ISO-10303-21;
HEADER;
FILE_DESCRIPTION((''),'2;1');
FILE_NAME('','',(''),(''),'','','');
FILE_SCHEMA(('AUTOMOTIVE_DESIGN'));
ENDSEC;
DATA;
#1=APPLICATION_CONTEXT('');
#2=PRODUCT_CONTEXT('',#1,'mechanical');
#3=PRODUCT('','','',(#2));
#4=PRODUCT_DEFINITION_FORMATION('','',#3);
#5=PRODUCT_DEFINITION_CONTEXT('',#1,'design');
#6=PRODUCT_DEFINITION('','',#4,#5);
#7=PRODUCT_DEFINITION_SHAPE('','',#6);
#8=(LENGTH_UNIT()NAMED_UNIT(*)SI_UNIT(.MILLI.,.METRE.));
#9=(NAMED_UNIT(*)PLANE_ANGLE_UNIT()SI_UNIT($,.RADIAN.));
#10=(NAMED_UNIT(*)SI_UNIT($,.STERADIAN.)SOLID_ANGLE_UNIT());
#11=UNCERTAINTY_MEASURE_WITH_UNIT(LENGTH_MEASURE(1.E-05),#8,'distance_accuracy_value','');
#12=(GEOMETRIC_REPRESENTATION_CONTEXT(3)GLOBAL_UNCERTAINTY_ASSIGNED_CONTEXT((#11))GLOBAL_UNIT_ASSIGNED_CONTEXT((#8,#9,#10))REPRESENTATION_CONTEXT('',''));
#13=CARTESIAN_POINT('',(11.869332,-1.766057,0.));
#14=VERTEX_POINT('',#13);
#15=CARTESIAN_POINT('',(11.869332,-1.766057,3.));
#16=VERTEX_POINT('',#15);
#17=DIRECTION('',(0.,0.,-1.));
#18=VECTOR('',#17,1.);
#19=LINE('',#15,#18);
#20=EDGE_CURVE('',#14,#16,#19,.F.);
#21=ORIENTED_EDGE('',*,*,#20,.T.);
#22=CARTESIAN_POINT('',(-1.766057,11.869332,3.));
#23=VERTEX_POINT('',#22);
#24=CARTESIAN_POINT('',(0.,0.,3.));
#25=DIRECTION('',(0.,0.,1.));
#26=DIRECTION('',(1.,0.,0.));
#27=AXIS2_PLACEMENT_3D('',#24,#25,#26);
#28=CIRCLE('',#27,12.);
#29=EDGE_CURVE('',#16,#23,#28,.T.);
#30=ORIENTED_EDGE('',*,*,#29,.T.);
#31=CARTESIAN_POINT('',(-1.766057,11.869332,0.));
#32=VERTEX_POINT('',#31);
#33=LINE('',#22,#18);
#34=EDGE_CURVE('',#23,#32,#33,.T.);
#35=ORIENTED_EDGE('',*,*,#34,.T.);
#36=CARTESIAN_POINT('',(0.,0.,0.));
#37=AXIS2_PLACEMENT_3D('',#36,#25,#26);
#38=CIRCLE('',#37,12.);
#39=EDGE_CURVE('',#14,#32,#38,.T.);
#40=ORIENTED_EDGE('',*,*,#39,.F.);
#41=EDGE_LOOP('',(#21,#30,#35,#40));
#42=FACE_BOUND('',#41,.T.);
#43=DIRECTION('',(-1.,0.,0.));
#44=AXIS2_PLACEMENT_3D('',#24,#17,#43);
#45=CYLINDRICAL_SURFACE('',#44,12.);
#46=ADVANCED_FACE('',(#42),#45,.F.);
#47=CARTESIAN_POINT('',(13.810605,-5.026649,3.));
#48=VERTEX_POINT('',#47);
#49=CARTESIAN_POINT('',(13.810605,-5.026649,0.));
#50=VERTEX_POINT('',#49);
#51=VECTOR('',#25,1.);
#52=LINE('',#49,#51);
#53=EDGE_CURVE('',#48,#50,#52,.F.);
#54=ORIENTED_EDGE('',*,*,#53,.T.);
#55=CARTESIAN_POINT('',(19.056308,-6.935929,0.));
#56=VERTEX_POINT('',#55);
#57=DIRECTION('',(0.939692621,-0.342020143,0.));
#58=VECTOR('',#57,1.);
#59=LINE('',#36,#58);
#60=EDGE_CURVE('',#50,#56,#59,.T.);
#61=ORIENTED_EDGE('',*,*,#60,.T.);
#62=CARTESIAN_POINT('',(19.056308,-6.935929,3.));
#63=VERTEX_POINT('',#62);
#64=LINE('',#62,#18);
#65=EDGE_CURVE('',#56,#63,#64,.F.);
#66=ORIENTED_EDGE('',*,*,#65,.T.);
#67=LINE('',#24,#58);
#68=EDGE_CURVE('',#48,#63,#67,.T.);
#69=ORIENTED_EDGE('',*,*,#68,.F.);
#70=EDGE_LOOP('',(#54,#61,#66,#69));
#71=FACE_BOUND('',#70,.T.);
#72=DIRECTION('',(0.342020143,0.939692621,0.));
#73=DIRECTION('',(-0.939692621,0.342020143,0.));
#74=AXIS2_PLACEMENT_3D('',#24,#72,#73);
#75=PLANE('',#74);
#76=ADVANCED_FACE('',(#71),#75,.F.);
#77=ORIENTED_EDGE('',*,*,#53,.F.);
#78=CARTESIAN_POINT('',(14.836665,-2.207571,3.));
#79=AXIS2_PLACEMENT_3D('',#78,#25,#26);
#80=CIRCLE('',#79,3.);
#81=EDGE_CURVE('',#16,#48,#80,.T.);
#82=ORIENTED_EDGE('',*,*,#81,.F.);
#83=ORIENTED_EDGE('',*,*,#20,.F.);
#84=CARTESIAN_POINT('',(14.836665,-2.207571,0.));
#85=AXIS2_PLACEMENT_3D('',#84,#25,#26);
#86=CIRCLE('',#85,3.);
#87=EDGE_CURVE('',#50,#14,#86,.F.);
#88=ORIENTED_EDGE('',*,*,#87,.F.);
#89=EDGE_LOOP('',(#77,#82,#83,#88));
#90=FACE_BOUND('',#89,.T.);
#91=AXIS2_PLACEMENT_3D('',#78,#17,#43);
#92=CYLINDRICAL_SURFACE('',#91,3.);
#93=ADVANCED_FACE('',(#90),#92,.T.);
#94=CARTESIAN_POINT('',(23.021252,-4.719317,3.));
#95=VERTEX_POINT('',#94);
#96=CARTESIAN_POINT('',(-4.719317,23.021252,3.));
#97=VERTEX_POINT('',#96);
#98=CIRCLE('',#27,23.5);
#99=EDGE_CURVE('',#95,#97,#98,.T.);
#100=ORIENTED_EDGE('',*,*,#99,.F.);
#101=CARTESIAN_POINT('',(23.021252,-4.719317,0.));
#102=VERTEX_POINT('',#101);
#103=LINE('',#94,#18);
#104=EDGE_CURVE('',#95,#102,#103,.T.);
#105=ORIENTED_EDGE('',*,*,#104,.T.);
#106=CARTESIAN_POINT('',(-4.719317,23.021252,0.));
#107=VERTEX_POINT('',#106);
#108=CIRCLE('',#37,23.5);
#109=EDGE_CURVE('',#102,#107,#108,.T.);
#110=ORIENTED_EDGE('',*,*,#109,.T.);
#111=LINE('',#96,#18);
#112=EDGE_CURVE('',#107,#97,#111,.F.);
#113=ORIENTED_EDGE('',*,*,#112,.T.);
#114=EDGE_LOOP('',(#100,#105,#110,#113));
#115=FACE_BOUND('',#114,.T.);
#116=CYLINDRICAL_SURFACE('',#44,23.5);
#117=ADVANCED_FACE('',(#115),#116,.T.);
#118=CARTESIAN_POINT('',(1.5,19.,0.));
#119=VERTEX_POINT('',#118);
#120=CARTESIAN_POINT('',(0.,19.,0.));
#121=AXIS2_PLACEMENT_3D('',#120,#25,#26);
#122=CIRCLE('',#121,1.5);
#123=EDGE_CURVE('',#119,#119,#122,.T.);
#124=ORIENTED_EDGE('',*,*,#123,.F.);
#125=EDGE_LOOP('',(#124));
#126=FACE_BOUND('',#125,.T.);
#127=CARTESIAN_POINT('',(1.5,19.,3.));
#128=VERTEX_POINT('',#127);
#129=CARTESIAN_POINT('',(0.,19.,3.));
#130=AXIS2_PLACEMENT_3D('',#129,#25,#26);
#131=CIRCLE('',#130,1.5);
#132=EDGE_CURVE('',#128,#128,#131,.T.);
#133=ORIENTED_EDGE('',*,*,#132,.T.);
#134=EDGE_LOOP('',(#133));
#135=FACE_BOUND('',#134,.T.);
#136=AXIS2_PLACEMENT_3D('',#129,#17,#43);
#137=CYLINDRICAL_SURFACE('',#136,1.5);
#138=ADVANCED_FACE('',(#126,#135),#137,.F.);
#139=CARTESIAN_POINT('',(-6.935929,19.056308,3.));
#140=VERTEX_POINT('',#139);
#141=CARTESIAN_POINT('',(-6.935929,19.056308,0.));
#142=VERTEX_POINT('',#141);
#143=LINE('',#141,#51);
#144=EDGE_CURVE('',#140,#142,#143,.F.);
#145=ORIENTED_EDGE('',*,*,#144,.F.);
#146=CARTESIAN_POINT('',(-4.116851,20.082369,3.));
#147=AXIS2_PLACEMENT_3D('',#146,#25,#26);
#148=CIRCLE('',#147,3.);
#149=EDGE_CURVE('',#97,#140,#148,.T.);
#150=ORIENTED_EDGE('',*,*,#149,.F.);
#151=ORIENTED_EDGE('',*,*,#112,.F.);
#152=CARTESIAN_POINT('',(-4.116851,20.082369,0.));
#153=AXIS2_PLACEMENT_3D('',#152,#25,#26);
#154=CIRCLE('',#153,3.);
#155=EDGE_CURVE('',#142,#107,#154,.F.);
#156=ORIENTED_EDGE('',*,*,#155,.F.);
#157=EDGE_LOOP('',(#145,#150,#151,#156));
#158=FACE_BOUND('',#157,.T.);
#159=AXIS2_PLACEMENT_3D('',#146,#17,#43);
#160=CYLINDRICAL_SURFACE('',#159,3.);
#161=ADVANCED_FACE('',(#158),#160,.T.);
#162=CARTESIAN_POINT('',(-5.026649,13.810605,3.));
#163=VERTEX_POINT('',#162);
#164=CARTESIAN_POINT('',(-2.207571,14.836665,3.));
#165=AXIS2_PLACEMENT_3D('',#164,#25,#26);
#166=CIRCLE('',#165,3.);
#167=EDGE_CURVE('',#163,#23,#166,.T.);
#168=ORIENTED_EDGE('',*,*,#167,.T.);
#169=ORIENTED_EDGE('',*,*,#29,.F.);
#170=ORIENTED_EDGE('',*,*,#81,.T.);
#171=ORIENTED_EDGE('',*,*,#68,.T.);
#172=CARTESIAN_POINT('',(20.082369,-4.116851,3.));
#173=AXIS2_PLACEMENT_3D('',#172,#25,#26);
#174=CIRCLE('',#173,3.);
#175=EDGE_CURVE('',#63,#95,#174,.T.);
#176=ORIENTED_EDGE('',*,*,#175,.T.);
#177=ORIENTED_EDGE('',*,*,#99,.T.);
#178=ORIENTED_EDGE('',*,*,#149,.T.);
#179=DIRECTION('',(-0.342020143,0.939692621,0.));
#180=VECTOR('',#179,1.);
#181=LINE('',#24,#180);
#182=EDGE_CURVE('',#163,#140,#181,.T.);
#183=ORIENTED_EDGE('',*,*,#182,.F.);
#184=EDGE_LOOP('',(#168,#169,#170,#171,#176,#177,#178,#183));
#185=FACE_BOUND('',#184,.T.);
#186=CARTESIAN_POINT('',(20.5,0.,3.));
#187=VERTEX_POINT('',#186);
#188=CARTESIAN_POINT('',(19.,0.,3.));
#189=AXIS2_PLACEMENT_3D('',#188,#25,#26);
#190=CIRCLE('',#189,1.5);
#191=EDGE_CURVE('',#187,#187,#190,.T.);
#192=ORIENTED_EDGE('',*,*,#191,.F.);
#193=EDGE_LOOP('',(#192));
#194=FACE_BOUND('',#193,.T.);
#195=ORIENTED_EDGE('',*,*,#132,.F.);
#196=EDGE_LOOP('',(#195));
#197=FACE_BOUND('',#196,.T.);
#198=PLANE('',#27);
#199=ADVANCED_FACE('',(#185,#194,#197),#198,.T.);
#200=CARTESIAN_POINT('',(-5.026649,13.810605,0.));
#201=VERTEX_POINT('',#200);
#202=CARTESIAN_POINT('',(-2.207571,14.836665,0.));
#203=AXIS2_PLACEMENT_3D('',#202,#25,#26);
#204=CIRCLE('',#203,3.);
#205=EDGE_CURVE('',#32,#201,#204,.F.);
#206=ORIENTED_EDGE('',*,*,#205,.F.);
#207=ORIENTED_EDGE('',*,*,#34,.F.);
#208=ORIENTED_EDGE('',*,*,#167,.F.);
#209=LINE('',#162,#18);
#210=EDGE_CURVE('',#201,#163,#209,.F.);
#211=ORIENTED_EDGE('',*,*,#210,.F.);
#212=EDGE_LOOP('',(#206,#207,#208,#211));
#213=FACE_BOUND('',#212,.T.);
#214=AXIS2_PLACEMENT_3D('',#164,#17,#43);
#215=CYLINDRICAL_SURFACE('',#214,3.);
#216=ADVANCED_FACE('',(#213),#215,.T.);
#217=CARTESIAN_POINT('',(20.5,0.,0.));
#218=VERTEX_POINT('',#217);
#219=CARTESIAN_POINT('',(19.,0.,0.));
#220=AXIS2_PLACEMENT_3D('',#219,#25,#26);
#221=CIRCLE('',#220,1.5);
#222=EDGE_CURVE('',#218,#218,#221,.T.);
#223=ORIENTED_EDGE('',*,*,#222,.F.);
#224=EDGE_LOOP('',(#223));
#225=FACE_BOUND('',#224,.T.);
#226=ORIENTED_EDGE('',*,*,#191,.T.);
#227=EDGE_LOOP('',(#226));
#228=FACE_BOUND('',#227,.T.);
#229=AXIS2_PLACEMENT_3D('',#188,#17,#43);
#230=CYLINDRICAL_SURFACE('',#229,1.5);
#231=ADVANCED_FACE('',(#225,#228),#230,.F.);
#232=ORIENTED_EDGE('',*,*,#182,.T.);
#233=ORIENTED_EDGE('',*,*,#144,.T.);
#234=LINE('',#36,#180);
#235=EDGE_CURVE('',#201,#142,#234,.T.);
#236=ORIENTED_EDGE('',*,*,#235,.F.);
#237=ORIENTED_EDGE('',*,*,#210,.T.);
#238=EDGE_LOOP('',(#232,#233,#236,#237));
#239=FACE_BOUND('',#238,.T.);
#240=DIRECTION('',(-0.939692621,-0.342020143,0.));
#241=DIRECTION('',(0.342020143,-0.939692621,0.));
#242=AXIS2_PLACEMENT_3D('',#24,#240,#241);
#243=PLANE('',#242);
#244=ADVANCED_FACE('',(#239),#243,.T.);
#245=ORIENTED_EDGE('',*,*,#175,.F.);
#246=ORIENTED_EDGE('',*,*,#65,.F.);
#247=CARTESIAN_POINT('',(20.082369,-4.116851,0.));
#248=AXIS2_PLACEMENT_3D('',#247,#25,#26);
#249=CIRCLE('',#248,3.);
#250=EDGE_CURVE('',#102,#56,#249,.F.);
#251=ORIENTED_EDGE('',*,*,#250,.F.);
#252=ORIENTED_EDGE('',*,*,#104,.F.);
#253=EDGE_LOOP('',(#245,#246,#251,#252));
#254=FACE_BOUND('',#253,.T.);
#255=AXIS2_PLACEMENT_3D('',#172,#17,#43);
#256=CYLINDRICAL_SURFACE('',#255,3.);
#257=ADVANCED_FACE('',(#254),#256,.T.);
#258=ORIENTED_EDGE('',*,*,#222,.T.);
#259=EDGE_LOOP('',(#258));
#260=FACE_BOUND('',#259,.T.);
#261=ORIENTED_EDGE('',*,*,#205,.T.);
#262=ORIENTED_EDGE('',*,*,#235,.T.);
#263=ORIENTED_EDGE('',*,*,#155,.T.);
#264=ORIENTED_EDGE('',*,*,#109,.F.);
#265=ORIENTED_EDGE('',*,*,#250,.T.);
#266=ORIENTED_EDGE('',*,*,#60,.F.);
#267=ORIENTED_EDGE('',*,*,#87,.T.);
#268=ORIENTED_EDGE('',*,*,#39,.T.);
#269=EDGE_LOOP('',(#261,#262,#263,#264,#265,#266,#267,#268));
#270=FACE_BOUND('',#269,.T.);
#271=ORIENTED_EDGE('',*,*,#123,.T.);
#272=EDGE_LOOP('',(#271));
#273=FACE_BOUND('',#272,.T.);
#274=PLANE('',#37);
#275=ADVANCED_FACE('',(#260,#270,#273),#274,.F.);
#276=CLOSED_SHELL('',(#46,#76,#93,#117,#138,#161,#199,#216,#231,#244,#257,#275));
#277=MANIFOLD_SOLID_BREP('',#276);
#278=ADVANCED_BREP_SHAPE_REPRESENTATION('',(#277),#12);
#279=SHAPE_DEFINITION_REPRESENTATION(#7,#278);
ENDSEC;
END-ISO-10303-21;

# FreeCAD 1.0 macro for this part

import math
import FreeCAD as App
import Part
import Sketcher
from FreeCAD import Vector
Q = App.Units.Quantity


def edges_at(feature, points):
    """Names of the edges that pass closest to the given points."""
    edges = feature.Shape.Edges
    near = lambda p: min(range(len(edges)), key=lambda i: edges[i].distToShape(Part.Vertex(*p))[0])
    return sorted({f"Edge{near(p) + 1}" for p in points})

doc = App.newDocument("Part")
body = doc.addObject("PartDesign::Body", "Body")

sketch1 = body.newObject("Sketcher::SketchObject", "Sketch")
sketch1.AttachmentSupport = (doc.getObject("XY_Plane"), [""])
sketch1.MapMode = "FlatFace"
sketch1.addGeometry([
    Part.LineSegment(Vector(-8, 22.1, 0), Vector(-4.1, 11.3, 0)),
    Part.ArcOfCircle(Part.Circle(Vector(0, 0, 0), Vector(0, 0, 1), 12), math.radians(0), math.radians(110)),
    Part.ArcOfCircle(Part.Circle(Vector(0, 0, 0), Vector(0, 0, 1), 12), math.radians(-20), math.radians(0)),
    Part.LineSegment(Vector(11.3, -4.1, 0), Vector(22.1, -8, 0)),
    Part.ArcOfCircle(Part.Circle(Vector(0, 0, 0), Vector(0, 0, 1), 23.5), math.radians(-20), math.radians(0)),
    Part.ArcOfCircle(Part.Circle(Vector(0, 0, 0), Vector(0, 0, 1), 23.5), math.radians(0), math.radians(110)),
    Part.Circle(Vector(19, 0, 0), Vector(0, 0, 1), 1.5),
    Part.Circle(Vector(0, 19, 0), Vector(0, 0, 1), 1.5),
], False)
sketch1.addConstraint([
    Sketcher.Constraint("Coincident", 0, 2, 1, 2),
    Sketcher.Constraint("Tangent", 1, 1, 2, 2),
    Sketcher.Constraint("Coincident", 2, 1, 3, 1),
    Sketcher.Constraint("Coincident", 3, 2, 4, 1),
    Sketcher.Constraint("Tangent", 4, 2, 5, 1),
    Sketcher.Constraint("Coincident", 5, 2, 0, 1),
    Sketcher.Constraint("Coincident", 1, 3, -1, 1),
    Sketcher.Constraint("Coincident", 4, 3, -1, 1),
    Sketcher.Constraint("Equal", 1, 2),
    Sketcher.Constraint("Equal", 4, 5),
    Sketcher.Constraint("Equal", 6, 7),
    Sketcher.Constraint("PointOnObject", 6, 3, -1),
    Sketcher.Constraint("PointOnObject", 7, 3, -2),
    Sketcher.Constraint("PointOnObject", 1, 1, -1),
    Sketcher.Constraint("PointOnObject", 4, 2, -1),
    Sketcher.Constraint("Diameter", 6, Q("3 mm")),
    Sketcher.Constraint("Radius", 1, Q("12 mm")),
    Sketcher.Constraint("Radius", 4, Q("23.5 mm")),
    Sketcher.Constraint("Angle", 0, Q("-70 deg")),
    Sketcher.Constraint("Angle", 3, Q("-20 deg")),
    Sketcher.Constraint("DistanceX", -1, 1, 6, 3, Q("19 mm")),
    Sketcher.Constraint("DistanceY", -1, 1, 7, 3, Q("19 mm")),
    Sketcher.Constraint("DistanceX", 0, 2, -1, 1, Q("4.104242 mm")),
    Sketcher.Constraint("DistanceX", -1, 1, 2, 1, Q("11.276311 mm")),
])
pad1 = body.newObject("PartDesign::Pad", "Pad")
pad1.Profile = sketch1
pad1.Length = 3
doc.recompute()

fillet = body.newObject("PartDesign::Fillet", "Fillet")
fillet.Base = (pad1, edges_at(pad1, [
    (11.276, -4.104, 1.5),
    (-4.104, 11.276, 1.5),
    (-8.037, 22.083, 1.5),
    (22.083, -8.037, 1.5),
]))
fillet.Radius = 3

doc.recompute()
